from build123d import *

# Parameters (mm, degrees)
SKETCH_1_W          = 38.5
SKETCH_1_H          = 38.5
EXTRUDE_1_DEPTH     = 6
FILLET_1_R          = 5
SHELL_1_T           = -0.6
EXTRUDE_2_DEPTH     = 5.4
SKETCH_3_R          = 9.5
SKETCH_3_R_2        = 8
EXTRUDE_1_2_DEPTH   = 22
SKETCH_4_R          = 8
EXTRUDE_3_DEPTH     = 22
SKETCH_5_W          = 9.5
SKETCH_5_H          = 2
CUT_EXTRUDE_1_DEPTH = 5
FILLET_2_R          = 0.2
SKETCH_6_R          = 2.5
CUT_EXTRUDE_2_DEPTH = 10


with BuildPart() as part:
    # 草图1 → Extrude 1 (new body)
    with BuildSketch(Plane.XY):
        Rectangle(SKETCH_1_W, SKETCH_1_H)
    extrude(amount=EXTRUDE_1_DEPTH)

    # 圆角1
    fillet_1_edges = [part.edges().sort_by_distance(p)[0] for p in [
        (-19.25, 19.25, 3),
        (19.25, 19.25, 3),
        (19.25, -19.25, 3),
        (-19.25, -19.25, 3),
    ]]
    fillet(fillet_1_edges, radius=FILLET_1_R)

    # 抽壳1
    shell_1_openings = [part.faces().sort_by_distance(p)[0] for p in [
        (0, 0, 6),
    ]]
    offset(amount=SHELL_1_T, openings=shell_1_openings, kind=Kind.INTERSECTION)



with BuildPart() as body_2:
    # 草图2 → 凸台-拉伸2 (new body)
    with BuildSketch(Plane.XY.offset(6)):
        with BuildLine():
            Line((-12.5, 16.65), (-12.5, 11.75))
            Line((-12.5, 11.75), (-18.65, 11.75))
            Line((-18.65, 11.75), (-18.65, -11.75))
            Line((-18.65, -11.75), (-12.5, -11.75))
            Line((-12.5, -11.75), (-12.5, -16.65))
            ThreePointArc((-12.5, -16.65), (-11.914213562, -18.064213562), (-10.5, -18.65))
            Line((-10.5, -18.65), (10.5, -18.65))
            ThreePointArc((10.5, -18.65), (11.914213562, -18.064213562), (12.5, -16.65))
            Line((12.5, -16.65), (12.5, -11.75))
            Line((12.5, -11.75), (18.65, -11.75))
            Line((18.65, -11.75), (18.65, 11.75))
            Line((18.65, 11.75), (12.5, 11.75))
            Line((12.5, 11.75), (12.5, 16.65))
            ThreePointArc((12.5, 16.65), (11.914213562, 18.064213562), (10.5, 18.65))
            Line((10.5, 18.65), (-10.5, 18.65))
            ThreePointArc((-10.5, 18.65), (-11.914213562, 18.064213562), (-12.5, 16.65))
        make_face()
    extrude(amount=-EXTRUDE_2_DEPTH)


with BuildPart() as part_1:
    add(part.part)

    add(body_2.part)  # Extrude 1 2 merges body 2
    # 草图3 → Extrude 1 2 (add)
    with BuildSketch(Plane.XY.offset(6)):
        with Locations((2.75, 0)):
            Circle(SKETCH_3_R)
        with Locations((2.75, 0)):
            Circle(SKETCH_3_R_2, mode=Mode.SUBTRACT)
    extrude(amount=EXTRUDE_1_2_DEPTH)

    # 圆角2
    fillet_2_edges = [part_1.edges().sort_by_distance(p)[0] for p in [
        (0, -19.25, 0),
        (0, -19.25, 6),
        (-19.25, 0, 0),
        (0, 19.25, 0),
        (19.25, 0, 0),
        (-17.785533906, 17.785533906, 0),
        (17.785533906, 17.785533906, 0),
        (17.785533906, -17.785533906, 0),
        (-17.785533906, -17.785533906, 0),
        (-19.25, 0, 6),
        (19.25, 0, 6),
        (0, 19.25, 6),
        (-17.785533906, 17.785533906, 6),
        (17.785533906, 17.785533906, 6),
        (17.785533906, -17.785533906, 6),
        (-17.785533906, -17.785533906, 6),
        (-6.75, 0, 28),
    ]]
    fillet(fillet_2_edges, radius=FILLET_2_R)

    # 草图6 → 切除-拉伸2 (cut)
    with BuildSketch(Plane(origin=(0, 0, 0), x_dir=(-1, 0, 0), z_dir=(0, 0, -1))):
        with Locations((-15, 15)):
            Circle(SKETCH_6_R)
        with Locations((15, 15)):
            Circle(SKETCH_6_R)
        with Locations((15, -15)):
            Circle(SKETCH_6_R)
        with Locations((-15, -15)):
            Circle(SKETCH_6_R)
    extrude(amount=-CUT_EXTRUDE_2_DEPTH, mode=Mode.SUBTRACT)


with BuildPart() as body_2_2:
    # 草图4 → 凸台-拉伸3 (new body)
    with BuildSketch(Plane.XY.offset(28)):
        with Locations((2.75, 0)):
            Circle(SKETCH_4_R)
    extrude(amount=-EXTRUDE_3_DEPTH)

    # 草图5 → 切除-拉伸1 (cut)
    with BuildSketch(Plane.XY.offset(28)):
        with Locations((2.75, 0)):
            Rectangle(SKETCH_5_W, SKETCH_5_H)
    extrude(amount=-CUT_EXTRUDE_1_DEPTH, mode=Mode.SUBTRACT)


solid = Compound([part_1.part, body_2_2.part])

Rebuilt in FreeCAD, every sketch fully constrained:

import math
import FreeCAD as App
import Part
import Sketcher
from FreeCAD import Vector
Q = App.Units.Quantity


def edges_at(feature, points):
    """Names of the edges that pass closest to the given points."""
    edges = feature.Shape.Edges
    near = lambda p: min(range(len(edges)), key=lambda i: edges[i].distToShape(Part.Vertex(*p))[0])
    return sorted({f"Edge{near(p) + 1}" for p in points})


def faces_at(feature, points):
    """Names of the faces that lie closest to the given points."""
    faces = feature.Shape.Faces
    near = lambda p: min(range(len(faces)), key=lambda i: faces[i].distToShape(Part.Vertex(*p))[0])
    return sorted({f"Face{near(p) + 1}" for p in points})

doc = App.newDocument("Part")
body = doc.addObject("PartDesign::Body", "Body")

# Sketch on XY plane
sketch1 = body.newObject("Sketcher::SketchObject", "Sketch")
sketch1.AttachmentSupport = (doc.getObject("XY_Plane"), [""])
sketch1.MapMode = "FlatFace"
sketch1.addGeometry([
    Part.LineSegment(Vector(-19, 19, 0), Vector(-19, -19, 0)),
    Part.LineSegment(Vector(-19, -19, 0), Vector(19, -19, 0)),
    Part.LineSegment(Vector(19, -19, 0), Vector(19, 19, 0)),
    Part.LineSegment(Vector(19, 19, 0), Vector(-19, 19, 0)),
], False)
sketch1.addConstraint([
    Sketcher.Constraint("Coincident", 0, 2, 1, 1),
    Sketcher.Constraint("Coincident", 1, 2, 2, 1),
    Sketcher.Constraint("Coincident", 2, 2, 3, 1),
    Sketcher.Constraint("Coincident", 3, 2, 0, 1),
    Sketcher.Constraint("Vertical", 0),
    Sketcher.Constraint("Horizontal", 1),
    Sketcher.Constraint("Vertical", 2),
    Sketcher.Constraint("Horizontal", 3),
    Sketcher.Constraint("Symmetric", 0, 2, 2, 2, -1, 1),
    Sketcher.Constraint("Equal", 3, 0),
    Sketcher.Constraint("DistanceX", 1, 1, 1, 2, Q("38.5 mm")),
])
pad1 = body.newObject("PartDesign::Pad", "Pad")
pad1.Profile = sketch1
pad1.Length = 6
doc.recompute()

fillet = body.newObject("PartDesign::Fillet", "Fillet")
fillet.Base = (pad1, edges_at(pad1, [
    (-19.25, 19.25, 3),
    (19.25, 19.25, 3),
    (19.25, -19.25, 3),
    (-19.25, -19.25, 3),
]))
fillet.Radius = 5
doc.recompute()

thickness = body.newObject("PartDesign::Thickness", "Thickness")
thickness.Base = (fillet, faces_at(fillet, [(0, 0, 6)]))
thickness.Value = 0.6
thickness.Reversed = True
thickness.Join = "Intersection"
body2 = doc.addObject("PartDesign::Body", "Body001")

# Sketch on XY plane
sketch2 = body2.newObject("Sketcher::SketchObject", "Sketch001")
sketch2.AttachmentSupport = (doc.getObject("XY_Plane001"), [""])
sketch2.MapMode = "FlatFace"
sketch2.AttachmentOffset = App.Placement(Vector(0, 0, 6), App.Rotation())
sketch2.addGeometry([
    Part.LineSegment(Vector(-12.5, 16.6, 0), Vector(-12.5, 11.8, 0)),  # 0
    Part.LineSegment(Vector(-12.5, 11.8, 0), Vector(-18.6, 11.8, 0)),  # 1
    Part.LineSegment(Vector(-18.6, 11.8, 0), Vector(-18.6, -11.8, 0)),  # 2
    Part.LineSegment(Vector(-18.6, -11.8, 0), Vector(-12.5, -11.8, 0)),  # 3
    Part.LineSegment(Vector(-12.5, -11.8, 0), Vector(-12.5, -16.6, 0)),  # 4
    Part.ArcOfCircle(Part.Circle(Vector(-10.5, -16.6, 0), Vector(0, 0, 1), 2), math.radians(-180), math.radians(-90)),  # 5
    Part.LineSegment(Vector(-10.5, -18.6, 0), Vector(10.5, -18.6, 0)),  # 6
    Part.ArcOfCircle(Part.Circle(Vector(10.5, -16.6, 0), Vector(0, 0, 1), 2), math.radians(-90), math.radians(0)),  # 7
    Part.LineSegment(Vector(12.5, -16.6, 0), Vector(12.5, -11.8, 0)),  # 8
    Part.LineSegment(Vector(12.5, -11.8, 0), Vector(18.6, -11.8, 0)),  # 9
    Part.LineSegment(Vector(18.6, -11.8, 0), Vector(18.6, 11.8, 0)),  # 10
    Part.LineSegment(Vector(18.6, 11.8, 0), Vector(12.5, 11.8, 0)),  # 11
    Part.LineSegment(Vector(12.5, 11.8, 0), Vector(12.5, 16.6, 0)),  # 12
    Part.ArcOfCircle(Part.Circle(Vector(10.5, 16.6, 0), Vector(0, 0, 1), 2), math.radians(0), math.radians(90)),  # 13
    Part.LineSegment(Vector(10.5, 18.6, 0), Vector(-10.5, 18.6, 0)),  # 14
    Part.ArcOfCircle(Part.Circle(Vector(-10.5, 16.6, 0), Vector(0, 0, 1), 2), math.radians(90), math.radians(180)),  # 15
], False)
sketch2.addConstraint([
    Sketcher.Constraint("Coincident", 0, 2, 1, 1),
    Sketcher.Constraint("Coincident", 1, 2, 2, 1),
    Sketcher.Constraint("Coincident", 2, 2, 3, 1),
    Sketcher.Constraint("Coincident", 3, 2, 4, 1),
    Sketcher.Constraint("Tangent", 4, 2, 5, 1),
    Sketcher.Constraint("Tangent", 5, 2, 6, 1),
    Sketcher.Constraint("Tangent", 6, 2, 7, 1),
    Sketcher.Constraint("Tangent", 7, 2, 8, 1),
    Sketcher.Constraint("Coincident", 8, 2, 9, 1),
    Sketcher.Constraint("Coincident", 9, 2, 10, 1),
    Sketcher.Constraint("Coincident", 10, 2, 11, 1),
    Sketcher.Constraint("Coincident", 11, 2, 12, 1),
    Sketcher.Constraint("Tangent", 12, 2, 13, 1),
    Sketcher.Constraint("Tangent", 13, 2, 14, 1),
    Sketcher.Constraint("Tangent", 14, 2, 15, 1),
    Sketcher.Constraint("Tangent", 15, 2, 0, 1),
    Sketcher.Constraint("Vertical", 0),
    Sketcher.Constraint("Horizontal", 1),
    Sketcher.Constraint("Vertical", 2),
    Sketcher.Constraint("Horizontal", 3),
    Sketcher.Constraint("Vertical", 4),
    Sketcher.Constraint("Horizontal", 6),
    Sketcher.Constraint("Vertical", 8),
    Sketcher.Constraint("Horizontal", 9),
    Sketcher.Constraint("Vertical", 10),
    Sketcher.Constraint("Horizontal", 11),
    Sketcher.Constraint("Vertical", 12),
    Sketcher.Constraint("Horizontal", 14),
    Sketcher.Constraint("Equal", 5, 7),
    Sketcher.Constraint("Equal", 7, 13),
    Sketcher.Constraint("Equal", 13, 15),
    Sketcher.Constraint("Symmetric", 5, 3, 13, 3, -1, 1),
    Sketcher.Constraint("Symmetric", 0, 2, 8, 2, -1, 1),
    Sketcher.Constraint("Symmetric", 2, 2, 10, 2, -1, 1),
    Sketcher.Constraint("Symmetric", 3, 2, 8, 2, -2),
    Sketcher.Constraint("Radius", 5, Q("2 mm")),
    Sketcher.Constraint("DistanceX", 6, 1, 6, 2, Q("21 mm")),
    Sketcher.Constraint("DistanceY", 0, 2, 0, 1, Q("4.9 mm")),
    Sketcher.Constraint("DistanceY", 2, 2, 2, 1, Q("23.5 mm")),
    Sketcher.Constraint("DistanceX", 1, 2, 1, 1, Q("6.15 mm")),
])
pad2 = body2.newObject("PartDesign::Pad", "Pad001")
pad2.Profile = sketch2
pad2.Length = 5.4
pad2.Reversed = True
doc.recompute()

boolean = body.newObject("PartDesign::Boolean", "Boolean")
boolean.Type = "Fuse"
boolean.addObjects([body2])

# Sketch on XY plane
sketch3 = body.newObject("Sketcher::SketchObject", "Sketch002")
sketch3.AttachmentSupport = (doc.getObject("XY_Plane"), [""])
sketch3.MapMode = "FlatFace"
sketch3.AttachmentOffset = App.Placement(Vector(0, 0, 6), App.Rotation())
sketch3.addGeometry([
    Part.Circle(Vector(3, 0, 0), Vector(0, 0, 1), 10),
    Part.Circle(Vector(3, 0, 0), Vector(0, 0, 1), 8),
], False)
sketch3.addConstraint([
    Sketcher.Constraint("Coincident", 1, 3, 0, 3),
    Sketcher.Constraint("PointOnObject", 0, 3, -1),
    Sketcher.Constraint("Diameter", 0, Q("19 mm")),
    Sketcher.Constraint("Diameter", 1, Q("16 mm")),
    Sketcher.Constraint("DistanceX", -1, 1, 0, 3, Q("2.75 mm")),
])
pad3 = body.newObject("PartDesign::Pad", "Pad002")
pad3.Profile = sketch3
pad3.Length = 22
doc.recompute()

fillet2 = body.newObject("PartDesign::Fillet", "Fillet001")
fillet2.Base = (pad3, edges_at(pad3, [
    (0, -19.25, 0),
    (0, -19.25, 6),
    (-19.25, 0, 0),
    (0, 19.25, 0),
    (19.25, 0, 0),
    (-17.786, 17.786, 0),
    (17.786, 17.786, 0),
    (17.786, -17.786, 0),
    (-17.786, -17.786, 0),
    (-19.25, 0, 6),
    (19.25, 0, 6),
    (0, 19.25, 6),
    (-17.786, 17.786, 6),
    (17.786, 17.786, 6),
    (17.786, -17.786, 6),
    (-17.786, -17.786, 6),
    (-6.75, 0, 28),
]))
fillet2.Radius = 0.2

# Sketch on XY plane
sketch4 = body.newObject("Sketcher::SketchObject", "Sketch003")
sketch4.AttachmentSupport = (doc.getObject("XY_Plane"), [""])
sketch4.MapMode = "FlatFace"
sketch4.addGeometry([
    Part.Circle(Vector(15, 15, 0), Vector(0, 0, 1), 2.5),
    Part.Circle(Vector(-15, 15, 0), Vector(0, 0, 1), 2.5),
    Part.Circle(Vector(-15, -15, 0), Vector(0, 0, 1), 2.5),
    Part.Circle(Vector(15, -15, 0), Vector(0, 0, 1), 2.5),
], False)
sketch4.addConstraint([
    Sketcher.Constraint("Equal", 0, 1),
    Sketcher.Constraint("Equal", 1, 2),
    Sketcher.Constraint("Equal", 2, 3),
    Sketcher.Constraint("Symmetric", 0, 3, 2, 3, -1, 1),
    Sketcher.Constraint("Symmetric", 1, 3, 3, 3, -1, 1),
    Sketcher.Constraint("Symmetric", 0, 3, 1, 3, -2),
    Sketcher.Constraint("Diameter", 0, Q("5 mm")),
    Sketcher.Constraint("DistanceX", -1, 1, 0, 3, Q("15 mm")),
    Sketcher.Constraint("DistanceY", -1, 1, 0, 3, Q("15 mm")),
])
pocket1 = body.newObject("PartDesign::Pocket", "Pocket")
pocket1.Profile = sketch4
pocket1.Length = 10
pocket1.Reversed = True
body3 = doc.addObject("PartDesign::Body", "Body002")

# Sketch on XY plane
sketch5 = body3.newObject("Sketcher::SketchObject", "Sketch004")
sketch5.AttachmentSupport = (doc.getObject("XY_Plane002"), [""])
sketch5.MapMode = "FlatFace"
sketch5.AttachmentOffset = App.Placement(Vector(0, 0, 28), App.Rotation())
sketch5.addGeometry(Part.Circle(Vector(3, 0, 0), Vector(0, 0, 1), 8), False)
sketch5.addConstraint([
    Sketcher.Constraint("PointOnObject", 0, 3, -1),
    Sketcher.Constraint("Diameter", 0, Q("16 mm")),
    Sketcher.Constraint("DistanceX", -1, 1, 0, 3, Q("2.75 mm")),
])
pad4 = body3.newObject("PartDesign::Pad", "Pad003")
pad4.Profile = sketch5
pad4.Length = 22
pad4.Reversed = True

# Sketch on XY plane
sketch6 = body3.newObject("Sketcher::SketchObject", "Sketch005")
sketch6.AttachmentSupport = (doc.getObject("XY_Plane002"), [""])
sketch6.MapMode = "FlatFace"
sketch6.AttachmentOffset = App.Placement(Vector(0, 0, 28), App.Rotation())
sketch6.addGeometry([
    Part.LineSegment(Vector(-2, 1, 0), Vector(-2, -1, 0)),
    Part.LineSegment(Vector(-2, -1, 0), Vector(7.5, -1, 0)),
    Part.LineSegment(Vector(7.5, -1, 0), Vector(7.5, 1, 0)),
    Part.LineSegment(Vector(7.5, 1, 0), Vector(-2, 1, 0)),
], False)
sketch6.addConstraint([
    Sketcher.Constraint("Coincident", 0, 2, 1, 1),
    Sketcher.Constraint("Coincident", 1, 2, 2, 1),
    Sketcher.Constraint("Coincident", 2, 2, 3, 1),
    Sketcher.Constraint("Coincident", 3, 2, 0, 1),
    Sketcher.Constraint("Vertical", 0),
    Sketcher.Constraint("Horizontal", 1),
    Sketcher.Constraint("Vertical", 2),
    Sketcher.Constraint("Horizontal", 3),
    Sketcher.Constraint("DistanceY", 0, 2, 0, 1, Q("2 mm")),
    Sketcher.Constraint("DistanceX", 1, 1, 1, 2, Q("9.5 mm")),
    Sketcher.Constraint("DistanceX", 0, 2, -1, 1, Q("2 mm")),
    Sketcher.Constraint("DistanceY", 0, 2, -1, 1, Q("1 mm")),
])
pocket2 = body3.newObject("PartDesign::Pocket", "Pocket001")
pocket2.Profile = sketch6
pocket2.Length = 5

doc.recompute()
